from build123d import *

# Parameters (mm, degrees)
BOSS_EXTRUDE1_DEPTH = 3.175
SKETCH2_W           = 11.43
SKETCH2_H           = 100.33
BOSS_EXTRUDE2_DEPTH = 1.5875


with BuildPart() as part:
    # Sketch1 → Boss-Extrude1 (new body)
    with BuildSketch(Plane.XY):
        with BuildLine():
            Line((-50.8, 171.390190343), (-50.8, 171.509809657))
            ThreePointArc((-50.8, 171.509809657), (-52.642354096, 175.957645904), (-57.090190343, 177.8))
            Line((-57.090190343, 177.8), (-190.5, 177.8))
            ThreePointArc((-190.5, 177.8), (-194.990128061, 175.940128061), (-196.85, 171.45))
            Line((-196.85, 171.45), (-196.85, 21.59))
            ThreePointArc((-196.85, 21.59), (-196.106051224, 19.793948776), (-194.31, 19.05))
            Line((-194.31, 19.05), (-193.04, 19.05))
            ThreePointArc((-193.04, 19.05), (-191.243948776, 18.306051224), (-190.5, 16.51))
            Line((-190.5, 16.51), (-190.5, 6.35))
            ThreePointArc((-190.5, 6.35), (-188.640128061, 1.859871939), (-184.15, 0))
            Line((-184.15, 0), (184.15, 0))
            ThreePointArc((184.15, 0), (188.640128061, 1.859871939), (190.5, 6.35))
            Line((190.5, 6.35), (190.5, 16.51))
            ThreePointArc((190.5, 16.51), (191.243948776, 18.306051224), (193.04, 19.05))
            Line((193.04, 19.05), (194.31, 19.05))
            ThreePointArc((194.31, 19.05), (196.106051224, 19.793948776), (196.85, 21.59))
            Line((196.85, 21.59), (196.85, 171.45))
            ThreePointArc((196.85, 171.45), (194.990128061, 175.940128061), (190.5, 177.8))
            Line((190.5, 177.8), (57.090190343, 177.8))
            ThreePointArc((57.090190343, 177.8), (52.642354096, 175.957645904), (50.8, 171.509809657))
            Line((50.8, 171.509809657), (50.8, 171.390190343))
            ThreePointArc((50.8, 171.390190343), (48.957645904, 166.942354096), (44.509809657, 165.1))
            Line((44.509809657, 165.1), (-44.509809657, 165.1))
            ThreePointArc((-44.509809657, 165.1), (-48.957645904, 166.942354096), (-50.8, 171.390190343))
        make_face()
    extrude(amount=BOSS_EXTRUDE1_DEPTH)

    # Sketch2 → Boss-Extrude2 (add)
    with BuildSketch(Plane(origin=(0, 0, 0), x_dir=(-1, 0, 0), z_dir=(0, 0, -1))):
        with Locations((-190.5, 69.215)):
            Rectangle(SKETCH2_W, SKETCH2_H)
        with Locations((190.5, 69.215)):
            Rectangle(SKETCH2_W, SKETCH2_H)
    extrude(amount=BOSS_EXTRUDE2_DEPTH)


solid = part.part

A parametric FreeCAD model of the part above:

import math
import FreeCAD as App
import Part
import Sketcher
from FreeCAD import Vector
Q = App.Units.Quantity

doc = App.newDocument("Part")
body = doc.addObject("PartDesign::Body", "Body")

sketch1 = body.newObject("Sketcher::SketchObject", "Sketch")
sketch1.AttachmentSupport = (doc.getObject("XY_Plane"), [""])
sketch1.MapMode = "FlatFace"
sketch1.addGeometry(Part.LineSegment(Vector(-50.8, 171.39, 0), Vector(-50.8, 171.51, 0)), False)
sketch1.addGeometry(Part.ArcOfCircle(Part.Circle(Vector(-57.09, 171.51, 0), Vector(0, 0, 1), 6.29), math.radians(0), math.radians(90)), False)
sketch1.addGeometry(Part.LineSegment(Vector(-57.09, 177.8, 0), Vector(-190.5, 177.8, 0)), False)
sketch1.addGeometry(Part.ArcOfCircle(Part.Circle(Vector(-190.5, 171.45, 0), Vector(0, 0, 1), 6.35), math.radians(90), math.radians(180)), False)
sketch1.addGeometry(Part.LineSegment(Vector(-196.85, 171.45, 0), Vector(-196.85, 21.59, 0)), False)
sketch1.addGeometry(Part.ArcOfCircle(Part.Circle(Vector(-194.31, 21.59, 0), Vector(0, 0, 1), 2.54), math.radians(-180), math.radians(-90)), False)
sketch1.addGeometry(Part.LineSegment(Vector(-194.31, 19.05, 0), Vector(-193.04, 19.05, 0)), False)
sketch1.addGeometry(Part.ArcOfCircle(Part.Circle(Vector(-193.04, 16.51, 0), Vector(0, 0, 1), 2.54), math.radians(0), math.radians(90)), False)
sketch1.addGeometry(Part.LineSegment(Vector(-190.5, 16.51, 0), Vector(-190.5, 6.35, 0)), False)
sketch1.addGeometry(Part.ArcOfCircle(Part.Circle(Vector(-184.15, 6.35, 0), Vector(0, 0, 1), 6.35), math.radians(180), math.radians(270)), False)
sketch1.addGeometry(Part.LineSegment(Vector(-184.15, 0, 0), Vector(184.15, 0, 0)), False)
sketch1.addGeometry(Part.ArcOfCircle(Part.Circle(Vector(184.15, 6.35, 0), Vector(0, 0, 1), 6.35), math.radians(-90), math.radians(0)), False)
sketch1.addGeometry(Part.LineSegment(Vector(190.5, 6.35, 0), Vector(190.5, 16.51, 0)), False)
sketch1.addGeometry(Part.ArcOfCircle(Part.Circle(Vector(193.04, 16.51, 0), Vector(0, 0, 1), 2.54), math.radians(90), math.radians(180)), False)
sketch1.addGeometry(Part.LineSegment(Vector(193.04, 19.05, 0), Vector(194.31, 19.05, 0)), False)
sketch1.addGeometry(Part.ArcOfCircle(Part.Circle(Vector(194.31, 21.59, 0), Vector(0, 0, 1), 2.54), math.radians(-90), math.radians(0)), False)
sketch1.addGeometry(Part.LineSegment(Vector(196.85, 21.59, 0), Vector(196.85, 171.45, 0)), False)
sketch1.addGeometry(Part.ArcOfCircle(Part.Circle(Vector(190.5, 171.45, 0), Vector(0, 0, 1), 6.35), math.radians(0), math.radians(90)), False)
sketch1.addGeometry(Part.LineSegment(Vector(190.5, 177.8, 0), Vector(57.09, 177.8, 0)), False)
sketch1.addGeometry(Part.ArcOfCircle(Part.Circle(Vector(57.09, 171.51, 0), Vector(0, 0, 1), 6.29), math.radians(90), math.radians(180)), False)
sketch1.addGeometry(Part.LineSegment(Vector(50.8, 171.51, 0), Vector(50.8, 171.39, 0)), False)
sketch1.addGeometry(Part.ArcOfCircle(Part.Circle(Vector(44.51, 171.39, 0), Vector(0, 0, 1), 6.29), math.radians(-90), math.radians(0)), False)
sketch1.addGeometry(Part.LineSegment(Vector(44.51, 165.1, 0), Vector(-44.51, 165.1, 0)), False)
sketch1.addGeometry(Part.ArcOfCircle(Part.Circle(Vector(-44.51, 171.39, 0), Vector(0, 0, 1), 6.29), math.radians(180), math.radians(270)), False)
sketch1.addConstraint(Sketcher.Constraint("Tangent", 0, 2, 1, 1))
sketch1.addConstraint(Sketcher.Constraint("Tangent", 1, 2, 2, 1))
sketch1.addConstraint(Sketcher.Constraint("Tangent", 2, 2, 3, 1))
sketch1.addConstraint(Sketcher.Constraint("Tangent", 3, 2, 4, 1))
sketch1.addConstraint(Sketcher.Constraint("Tangent", 4, 2, 5, 1))
sketch1.addConstraint(Sketcher.Constraint("Tangent", 5, 2, 6, 1))
sketch1.addConstraint(Sketcher.Constraint("Tangent", 6, 2, 7, 2))
sketch1.addConstraint(Sketcher.Constraint("Tangent", 7, 1, 8, 1))
sketch1.addConstraint(Sketcher.Constraint("Tangent", 8, 2, 9, 1))
sketch1.addConstraint(Sketcher.Constraint("Tangent", 9, 2, 10, 1))
sketch1.addConstraint(Sketcher.Constraint("Tangent", 10, 2, 11, 1))
sketch1.addConstraint(Sketcher.Constraint("Tangent", 11, 2, 12, 1))
sketch1.addConstraint(Sketcher.Constraint("Tangent", 12, 2, 13, 2))
sketch1.addConstraint(Sketcher.Constraint("Tangent", 13, 1, 14, 1))
sketch1.addConstraint(Sketcher.Constraint("Tangent", 14, 2, 15, 1))
sketch1.addConstraint(Sketcher.Constraint("Tangent", 15, 2, 16, 1))
sketch1.addConstraint(Sketcher.Constraint("Tangent", 16, 2, 17, 1))
sketch1.addConstraint(Sketcher.Constraint("Tangent", 17, 2, 18, 1))
sketch1.addConstraint(Sketcher.Constraint("Tangent", 18, 2, 19, 1))
sketch1.addConstraint(Sketcher.Constraint("Tangent", 19, 2, 20, 1))
sketch1.addConstraint(Sketcher.Constraint("Tangent", 20, 2, 21, 2))
sketch1.addConstraint(Sketcher.Constraint("Tangent", 21, 1, 22, 1))
sketch1.addConstraint(Sketcher.Constraint("Tangent", 22, 2, 23, 2))
sketch1.addConstraint(Sketcher.Constraint("Tangent", 23, 1, 0, 1))
sketch1.addConstraint(Sketcher.Constraint("Vertical", 0))
sketch1.addConstraint(Sketcher.Constraint("Horizontal", 2))
sketch1.addConstraint(Sketcher.Constraint("Vertical", 4))
sketch1.addConstraint(Sketcher.Constraint("Horizontal", 6))
sketch1.addConstraint(Sketcher.Constraint("Vertical", 8))
sketch1.addConstraint(Sketcher.Constraint("Horizontal", 10))
sketch1.addConstraint(Sketcher.Constraint("Vertical", 12))
sketch1.addConstraint(Sketcher.Constraint("Horizontal", 14))
sketch1.addConstraint(Sketcher.Constraint("Vertical", 16))
sketch1.addConstraint(Sketcher.Constraint("Horizontal", 18))
sketch1.addConstraint(Sketcher.Constraint("Vertical", 20))
sketch1.addConstraint(Sketcher.Constraint("Horizontal", 22))
sketch1.addConstraint(Sketcher.Constraint("Equal", 5, 7))
sketch1.addConstraint(Sketcher.Constraint("Equal", 3, 9))
sketch1.addConstraint(Sketcher.Constraint("Equal", 9, 11))
sketch1.addConstraint(Sketcher.Constraint("Equal", 7, 13))
sketch1.addConstraint(Sketcher.Constraint("Equal", 13, 15))
sketch1.addConstraint(Sketcher.Constraint("Equal", 11, 17))
sketch1.addConstraint(Sketcher.Constraint("Equal", 1, 19))
sketch1.addConstraint(Sketcher.Constraint("Equal", 19, 21))
sketch1.addConstraint(Sketcher.Constraint("Equal", 21, 23))
sketch1.addConstraint(Sketcher.Constraint("Symmetric", 9, 2, 10, 2, -1, 1))
sketch1.addConstraint(Sketcher.Constraint("Symmetric", 5, 3, 15, 3, -2))
sketch1.addConstraint(Sketcher.Constraint("Symmetric", 1, 3, 19, 3, -2))
sketch1.addConstraint(Sketcher.Constraint("Vertical", 2, 2, 7, 1))
sketch1.addConstraint(Sketcher.Constraint("Radius", 5, Q("0.1 in")))
sketch1.addConstraint(Sketcher.Constraint("Radius", 3, Q("0.25 in")))
sketch1.addConstraint(Sketcher.Constraint("DistanceX", 10, 1, 10, 2, Q("14.5 in")))
sketch1.addConstraint(Sketcher.Constraint("DistanceY", 4, 2, 4, 1, Q("5.9 in")))
sketch1.addConstraint(Sketcher.Constraint("DistanceY", 8, 2, 8, 1, Q("0.4 in")))
sketch1.addConstraint(Sketcher.Constraint("DistanceX", 0, 2, -1, 1, Q("2 in")))
sketch1.addConstraint(Sketcher.Constraint("DistanceY", -1, 1, 21, 1, Q("6.5 in")))
sketch1.addConstraint(Sketcher.Constraint("Radius", 1, Q("6.29019 mm")))
pad1 = body.newObject("PartDesign::Pad", "Pad")
pad1.Profile = sketch1
pad1.Length = Q("0.125 in")

sketch2 = body.newObject("Sketcher::SketchObject", "Sketch001")
sketch2.AttachmentSupport = (doc.getObject("XY_Plane"), [""])
sketch2.MapMode = "FlatFace"
sketch2.addGeometry(Part.LineSegment(Vector(196, 119, 0), Vector(196, 19, 0)), False)
sketch2.addGeometry(Part.LineSegment(Vector(196, 19, 0), Vector(185, 19, 0)), False)
sketch2.addGeometry(Part.LineSegment(Vector(185, 19, 0), Vector(185, 119, 0)), False)
sketch2.addGeometry(Part.LineSegment(Vector(185, 119, 0), Vector(196, 119, 0)), False)
sketch2.addGeometry(Part.LineSegment(Vector(-185, 119, 0), Vector(-185, 19, 0)), False)
sketch2.addGeometry(Part.LineSegment(Vector(-185, 19, 0), Vector(-196, 19, 0)), False)
sketch2.addGeometry(Part.LineSegment(Vector(-196, 19, 0), Vector(-196, 119, 0)), False)
sketch2.addGeometry(Part.LineSegment(Vector(-196, 119, 0), Vector(-185, 119, 0)), False)
sketch2.addConstraint(Sketcher.Constraint("Coincident", 0, 2, 1, 1))
sketch2.addConstraint(Sketcher.Constraint("Coincident", 1, 2, 2, 1))
sketch2.addConstraint(Sketcher.Constraint("Coincident", 2, 2, 3, 1))
sketch2.addConstraint(Sketcher.Constraint("Coincident", 3, 2, 0, 1))
sketch2.addConstraint(Sketcher.Constraint("Coincident", 4, 2, 5, 1))
sketch2.addConstraint(Sketcher.Constraint("Coincident", 5, 2, 6, 1))
sketch2.addConstraint(Sketcher.Constraint("Coincident", 6, 2, 7, 1))
sketch2.addConstraint(Sketcher.Constraint("Coincident", 7, 2, 4, 1))
sketch2.addConstraint(Sketcher.Constraint("Vertical", 0))
sketch2.addConstraint(Sketcher.Constraint("Horizontal", 1))
sketch2.addConstraint(Sketcher.Constraint("Vertical", 2))
sketch2.addConstraint(Sketcher.Constraint("Horizontal", 3))
sketch2.addConstraint(Sketcher.Constraint("Vertical", 4))
sketch2.addConstraint(Sketcher.Constraint("Horizontal", 5))
sketch2.addConstraint(Sketcher.Constraint("Vertical", 6))
sketch2.addConstraint(Sketcher.Constraint("Horizontal", 7))
sketch2.addConstraint(Sketcher.Constraint("Symmetric", 1, 2, 4, 2, -2))
sketch2.addConstraint(Sketcher.Constraint("Symmetric", 3, 2, 6, 2, -2))
sketch2.addConstraint(Sketcher.Constraint("DistanceX", 4, 2, 0, 2, Q("15 in")))
sketch2.addConstraint(Sketcher.Constraint("DistanceX", 1, 2, 1, 1, Q("0.45 in")))
sketch2.addConstraint(Sketcher.Constraint("DistanceY", 0, 2, 0, 1, Q("3.95 in")))
sketch2.addConstraint(Sketcher.Constraint("DistanceY", -1, 1, 2, 2, Q("4.7 in")))
pad2 = body.newObject("PartDesign::Pad", "Pad001")
pad2.Profile = sketch2
pad2.Length = Q("0.0625 in")
pad2.Reversed = True

doc.recompute()
